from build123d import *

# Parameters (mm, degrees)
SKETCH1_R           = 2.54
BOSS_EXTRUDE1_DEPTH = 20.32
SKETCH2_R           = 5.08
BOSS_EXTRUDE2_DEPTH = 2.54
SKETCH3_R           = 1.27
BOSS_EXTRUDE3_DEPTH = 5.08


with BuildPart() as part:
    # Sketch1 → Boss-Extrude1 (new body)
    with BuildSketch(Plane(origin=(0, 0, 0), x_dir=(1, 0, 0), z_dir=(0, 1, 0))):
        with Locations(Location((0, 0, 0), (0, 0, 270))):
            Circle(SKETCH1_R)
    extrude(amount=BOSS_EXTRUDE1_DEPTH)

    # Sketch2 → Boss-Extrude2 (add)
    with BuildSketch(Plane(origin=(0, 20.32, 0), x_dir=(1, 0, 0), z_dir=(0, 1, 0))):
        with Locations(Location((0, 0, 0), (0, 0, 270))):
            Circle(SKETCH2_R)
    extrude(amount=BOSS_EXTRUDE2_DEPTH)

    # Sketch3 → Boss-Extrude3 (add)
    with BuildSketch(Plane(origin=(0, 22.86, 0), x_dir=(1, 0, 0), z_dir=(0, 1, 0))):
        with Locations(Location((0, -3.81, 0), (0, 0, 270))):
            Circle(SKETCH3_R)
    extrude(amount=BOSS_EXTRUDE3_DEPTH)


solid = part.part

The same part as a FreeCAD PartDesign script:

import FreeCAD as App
import Part
import Sketcher
from FreeCAD import Vector
Q = App.Units.Quantity

doc = App.newDocument("Part")
body = doc.addObject("PartDesign::Body", "Body")

# Sketch on XZ plane
sketch1 = body.newObject("Sketcher::SketchObject", "Sketch")
sketch1.AttachmentSupport = (doc.getObject("XZ_Plane"), [""])
sketch1.MapMode = "FlatFace"
sketch1.addGeometry(Part.Circle(Vector(0, 0, 0), Vector(0, 0, 1), 2.54), False)
sketch1.addConstraint(Sketcher.Constraint("Coincident", 0, 3, -1, 1))
sketch1.addConstraint(Sketcher.Constraint("Diameter", 0, Q("0.2 in")))
pad1 = body.newObject("PartDesign::Pad", "Pad")
pad1.Profile = sketch1
pad1.Length = Q("0.8 in")
pad1.Reversed = True

# Sketch on XZ plane
sketch2 = body.newObject("Sketcher::SketchObject", "Sketch001")
sketch2.AttachmentSupport = (doc.getObject("XZ_Plane"), [""])
sketch2.MapMode = "FlatFace"
sketch2.AttachmentOffset = App.Placement(Vector(0, 0, -0.8 * 25.4), App.Rotation())
sketch2.addGeometry(Part.Circle(Vector(0, 0, 0), Vector(0, 0, 1), 5.08), False)
sketch2.addConstraint(Sketcher.Constraint("Coincident", 0, 3, -1, 1))
sketch2.addConstraint(Sketcher.Constraint("Diameter", 0, Q("0.4 in")))
pad2 = body.newObject("PartDesign::Pad", "Pad001")
pad2.Profile = sketch2
pad2.Length = Q("0.1 in")
pad2.Reversed = True

# Sketch on XZ plane
sketch3 = body.newObject("Sketcher::SketchObject", "Sketch002")
sketch3.AttachmentSupport = (doc.getObject("XZ_Plane"), [""])
sketch3.MapMode = "FlatFace"
sketch3.AttachmentOffset = App.Placement(Vector(0, 0, -0.9 * 25.4), App.Rotation())
sketch3.addGeometry(Part.Circle(Vector(0, 3.81, 0), Vector(0, 0, 1), 1.27), False)
sketch3.addConstraint(Sketcher.Constraint("PointOnObject", 0, 3, -2))
sketch3.addConstraint(Sketcher.Constraint("Diameter", 0, Q("0.1 in")))
sketch3.addConstraint(Sketcher.Constraint("DistanceY", -1, 1, 0, 3, Q("0.15 in")))
pad3 = body.newObject("PartDesign::Pad", "Pad002")
pad3.Profile = sketch3
pad3.Length = Q("0.2 in")
pad3.Reversed = True

doc.recompute()
